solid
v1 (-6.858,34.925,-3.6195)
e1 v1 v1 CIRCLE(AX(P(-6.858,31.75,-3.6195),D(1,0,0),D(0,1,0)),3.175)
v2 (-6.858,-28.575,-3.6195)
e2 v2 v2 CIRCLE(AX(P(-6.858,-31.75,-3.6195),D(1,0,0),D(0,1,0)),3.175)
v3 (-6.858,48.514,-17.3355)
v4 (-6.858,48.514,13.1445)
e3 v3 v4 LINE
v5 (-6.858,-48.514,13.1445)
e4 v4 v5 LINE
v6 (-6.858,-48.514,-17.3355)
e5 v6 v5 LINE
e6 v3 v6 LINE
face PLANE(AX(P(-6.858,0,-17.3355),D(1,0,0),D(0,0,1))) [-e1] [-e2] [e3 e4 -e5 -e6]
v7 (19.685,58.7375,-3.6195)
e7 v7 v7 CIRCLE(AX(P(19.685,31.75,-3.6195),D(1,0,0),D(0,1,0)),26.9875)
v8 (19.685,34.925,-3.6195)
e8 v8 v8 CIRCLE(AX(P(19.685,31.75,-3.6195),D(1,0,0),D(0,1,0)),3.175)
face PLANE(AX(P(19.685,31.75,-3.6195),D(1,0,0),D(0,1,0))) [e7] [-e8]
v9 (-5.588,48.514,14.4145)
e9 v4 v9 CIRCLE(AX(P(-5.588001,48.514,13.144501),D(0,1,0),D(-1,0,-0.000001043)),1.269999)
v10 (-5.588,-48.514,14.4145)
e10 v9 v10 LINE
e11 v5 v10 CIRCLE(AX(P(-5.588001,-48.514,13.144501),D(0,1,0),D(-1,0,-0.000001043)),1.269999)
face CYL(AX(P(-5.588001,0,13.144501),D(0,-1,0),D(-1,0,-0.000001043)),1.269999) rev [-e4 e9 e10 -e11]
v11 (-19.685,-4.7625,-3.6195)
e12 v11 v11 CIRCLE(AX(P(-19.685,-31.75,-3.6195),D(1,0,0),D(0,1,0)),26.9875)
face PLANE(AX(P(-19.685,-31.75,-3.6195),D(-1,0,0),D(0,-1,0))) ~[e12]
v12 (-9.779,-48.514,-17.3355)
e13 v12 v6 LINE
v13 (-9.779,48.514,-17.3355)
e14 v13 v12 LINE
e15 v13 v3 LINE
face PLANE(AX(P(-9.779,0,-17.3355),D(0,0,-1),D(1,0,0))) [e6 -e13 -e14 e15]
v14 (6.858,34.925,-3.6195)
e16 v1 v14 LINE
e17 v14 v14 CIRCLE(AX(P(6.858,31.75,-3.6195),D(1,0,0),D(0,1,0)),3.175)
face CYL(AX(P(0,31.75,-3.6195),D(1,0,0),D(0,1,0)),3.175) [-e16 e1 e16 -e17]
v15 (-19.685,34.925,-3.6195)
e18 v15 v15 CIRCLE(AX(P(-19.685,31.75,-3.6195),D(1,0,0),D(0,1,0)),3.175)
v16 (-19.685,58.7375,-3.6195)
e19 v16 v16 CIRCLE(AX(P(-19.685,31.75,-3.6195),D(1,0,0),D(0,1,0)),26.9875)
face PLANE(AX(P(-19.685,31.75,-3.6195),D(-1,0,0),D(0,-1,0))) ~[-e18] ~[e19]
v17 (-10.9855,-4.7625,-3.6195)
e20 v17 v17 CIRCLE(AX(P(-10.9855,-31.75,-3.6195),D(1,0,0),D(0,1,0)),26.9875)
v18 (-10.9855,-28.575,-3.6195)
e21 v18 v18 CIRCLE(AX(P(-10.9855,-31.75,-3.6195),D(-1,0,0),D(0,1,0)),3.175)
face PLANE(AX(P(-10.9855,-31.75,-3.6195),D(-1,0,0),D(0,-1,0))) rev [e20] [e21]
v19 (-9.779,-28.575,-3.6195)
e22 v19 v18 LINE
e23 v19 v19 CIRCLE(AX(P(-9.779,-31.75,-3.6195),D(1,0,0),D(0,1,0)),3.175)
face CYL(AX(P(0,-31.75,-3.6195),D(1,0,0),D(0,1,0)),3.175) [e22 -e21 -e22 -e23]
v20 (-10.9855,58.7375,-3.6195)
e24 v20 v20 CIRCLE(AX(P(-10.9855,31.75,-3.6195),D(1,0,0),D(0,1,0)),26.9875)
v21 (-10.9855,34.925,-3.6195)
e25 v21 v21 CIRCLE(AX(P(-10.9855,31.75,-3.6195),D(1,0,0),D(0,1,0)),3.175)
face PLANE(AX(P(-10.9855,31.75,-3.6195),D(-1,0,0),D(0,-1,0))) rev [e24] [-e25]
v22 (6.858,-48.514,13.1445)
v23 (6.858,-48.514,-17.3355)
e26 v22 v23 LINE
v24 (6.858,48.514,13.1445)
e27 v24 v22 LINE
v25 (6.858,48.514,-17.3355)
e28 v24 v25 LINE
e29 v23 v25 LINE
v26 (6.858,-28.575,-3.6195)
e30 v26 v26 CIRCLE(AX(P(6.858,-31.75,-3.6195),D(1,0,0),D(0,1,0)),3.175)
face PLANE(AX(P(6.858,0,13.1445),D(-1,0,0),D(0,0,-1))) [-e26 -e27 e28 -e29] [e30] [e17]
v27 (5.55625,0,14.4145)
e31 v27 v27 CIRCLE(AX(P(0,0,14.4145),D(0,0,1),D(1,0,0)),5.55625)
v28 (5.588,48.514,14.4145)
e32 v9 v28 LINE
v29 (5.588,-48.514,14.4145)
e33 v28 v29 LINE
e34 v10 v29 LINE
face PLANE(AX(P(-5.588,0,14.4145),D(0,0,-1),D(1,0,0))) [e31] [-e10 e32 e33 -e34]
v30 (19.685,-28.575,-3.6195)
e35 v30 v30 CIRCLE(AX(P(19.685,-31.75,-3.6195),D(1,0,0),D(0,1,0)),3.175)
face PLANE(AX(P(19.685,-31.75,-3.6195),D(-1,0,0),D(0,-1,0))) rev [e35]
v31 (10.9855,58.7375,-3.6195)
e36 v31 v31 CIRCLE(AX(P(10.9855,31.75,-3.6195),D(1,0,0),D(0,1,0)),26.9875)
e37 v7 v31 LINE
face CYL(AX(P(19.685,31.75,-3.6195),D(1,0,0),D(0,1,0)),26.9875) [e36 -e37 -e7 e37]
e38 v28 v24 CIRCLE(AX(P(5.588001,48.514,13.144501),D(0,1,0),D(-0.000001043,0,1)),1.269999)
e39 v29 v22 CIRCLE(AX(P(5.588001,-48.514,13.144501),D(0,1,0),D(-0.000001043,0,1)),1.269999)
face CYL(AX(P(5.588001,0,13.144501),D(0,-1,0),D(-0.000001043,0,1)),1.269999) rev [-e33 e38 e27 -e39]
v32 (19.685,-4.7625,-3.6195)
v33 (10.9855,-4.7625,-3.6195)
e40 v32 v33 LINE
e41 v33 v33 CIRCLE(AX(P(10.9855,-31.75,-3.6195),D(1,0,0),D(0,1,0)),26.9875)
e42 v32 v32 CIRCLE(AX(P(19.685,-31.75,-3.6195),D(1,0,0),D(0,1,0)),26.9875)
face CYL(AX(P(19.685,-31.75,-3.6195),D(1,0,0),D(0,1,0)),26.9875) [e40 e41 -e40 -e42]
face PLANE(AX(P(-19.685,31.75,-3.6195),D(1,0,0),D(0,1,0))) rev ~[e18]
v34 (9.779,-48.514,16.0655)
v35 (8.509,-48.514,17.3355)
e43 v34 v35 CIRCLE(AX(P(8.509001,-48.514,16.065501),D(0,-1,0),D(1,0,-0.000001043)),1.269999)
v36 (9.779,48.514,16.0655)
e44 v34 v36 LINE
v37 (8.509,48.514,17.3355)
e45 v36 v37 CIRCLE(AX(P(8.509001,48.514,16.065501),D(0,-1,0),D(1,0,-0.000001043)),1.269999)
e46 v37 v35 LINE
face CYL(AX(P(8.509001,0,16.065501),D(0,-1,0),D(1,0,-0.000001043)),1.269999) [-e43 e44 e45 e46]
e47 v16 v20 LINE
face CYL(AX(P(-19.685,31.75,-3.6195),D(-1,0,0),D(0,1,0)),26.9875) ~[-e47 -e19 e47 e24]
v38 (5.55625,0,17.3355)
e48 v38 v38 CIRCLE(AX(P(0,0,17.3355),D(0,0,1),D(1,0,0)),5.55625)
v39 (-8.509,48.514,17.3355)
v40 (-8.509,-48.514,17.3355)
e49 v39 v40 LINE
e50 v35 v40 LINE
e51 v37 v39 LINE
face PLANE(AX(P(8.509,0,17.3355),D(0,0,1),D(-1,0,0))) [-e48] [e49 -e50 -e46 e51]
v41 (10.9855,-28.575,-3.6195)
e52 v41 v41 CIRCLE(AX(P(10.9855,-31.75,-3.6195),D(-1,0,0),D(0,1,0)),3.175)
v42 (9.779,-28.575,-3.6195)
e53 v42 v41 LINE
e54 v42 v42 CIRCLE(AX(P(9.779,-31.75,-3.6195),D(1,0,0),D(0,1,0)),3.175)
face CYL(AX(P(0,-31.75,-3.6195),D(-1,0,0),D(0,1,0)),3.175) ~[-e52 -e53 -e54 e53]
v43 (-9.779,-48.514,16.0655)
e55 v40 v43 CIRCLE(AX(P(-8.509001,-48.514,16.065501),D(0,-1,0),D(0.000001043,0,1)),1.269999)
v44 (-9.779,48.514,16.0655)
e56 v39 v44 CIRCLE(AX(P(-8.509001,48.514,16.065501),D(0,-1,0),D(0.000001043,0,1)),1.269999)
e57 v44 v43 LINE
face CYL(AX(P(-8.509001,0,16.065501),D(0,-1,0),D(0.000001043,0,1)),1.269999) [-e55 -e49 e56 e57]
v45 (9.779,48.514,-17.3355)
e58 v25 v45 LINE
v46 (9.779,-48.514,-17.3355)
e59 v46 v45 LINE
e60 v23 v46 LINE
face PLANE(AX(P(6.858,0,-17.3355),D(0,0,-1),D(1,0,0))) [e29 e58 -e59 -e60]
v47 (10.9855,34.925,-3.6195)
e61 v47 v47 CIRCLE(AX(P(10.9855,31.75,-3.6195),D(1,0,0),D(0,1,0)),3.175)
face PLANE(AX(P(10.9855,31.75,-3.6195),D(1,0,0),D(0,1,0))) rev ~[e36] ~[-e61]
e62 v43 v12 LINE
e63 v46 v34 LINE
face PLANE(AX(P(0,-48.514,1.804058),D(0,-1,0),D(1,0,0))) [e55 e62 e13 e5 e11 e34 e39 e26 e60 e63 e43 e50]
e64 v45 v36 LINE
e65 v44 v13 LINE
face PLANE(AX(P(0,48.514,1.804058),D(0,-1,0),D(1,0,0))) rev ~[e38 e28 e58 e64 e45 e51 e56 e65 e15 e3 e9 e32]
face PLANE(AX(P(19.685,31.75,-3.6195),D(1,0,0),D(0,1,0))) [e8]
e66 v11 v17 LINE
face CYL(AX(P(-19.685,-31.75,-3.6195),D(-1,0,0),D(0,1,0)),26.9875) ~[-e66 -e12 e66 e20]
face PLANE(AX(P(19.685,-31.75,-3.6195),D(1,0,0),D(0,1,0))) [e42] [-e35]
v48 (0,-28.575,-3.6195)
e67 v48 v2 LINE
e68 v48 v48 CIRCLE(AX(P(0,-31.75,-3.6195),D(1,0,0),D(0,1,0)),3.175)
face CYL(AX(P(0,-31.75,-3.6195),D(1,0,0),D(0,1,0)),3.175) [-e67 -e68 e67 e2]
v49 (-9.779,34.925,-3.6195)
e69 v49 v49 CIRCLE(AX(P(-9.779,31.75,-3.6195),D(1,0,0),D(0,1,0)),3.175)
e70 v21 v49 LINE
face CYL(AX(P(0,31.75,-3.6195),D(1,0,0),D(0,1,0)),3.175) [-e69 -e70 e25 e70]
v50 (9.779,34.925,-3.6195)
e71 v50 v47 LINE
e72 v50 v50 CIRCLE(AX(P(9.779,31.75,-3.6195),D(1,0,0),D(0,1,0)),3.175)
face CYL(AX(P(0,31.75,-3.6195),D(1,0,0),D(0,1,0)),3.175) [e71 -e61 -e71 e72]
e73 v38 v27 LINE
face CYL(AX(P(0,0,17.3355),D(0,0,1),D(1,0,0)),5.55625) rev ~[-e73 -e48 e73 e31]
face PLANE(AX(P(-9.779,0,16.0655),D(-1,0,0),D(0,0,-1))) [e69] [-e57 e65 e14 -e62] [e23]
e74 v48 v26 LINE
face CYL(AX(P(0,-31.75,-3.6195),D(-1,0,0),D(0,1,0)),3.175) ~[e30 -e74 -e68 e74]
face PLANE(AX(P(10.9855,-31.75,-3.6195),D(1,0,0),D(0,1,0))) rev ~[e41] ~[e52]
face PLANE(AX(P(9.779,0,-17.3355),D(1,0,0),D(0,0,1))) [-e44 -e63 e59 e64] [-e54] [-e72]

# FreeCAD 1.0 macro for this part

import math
import FreeCAD as App
import Part
import Sketcher

V = App.Vector
Q = App.Units.Quantity

doc = App.newDocument("Part")
body = doc.addObject("PartDesign::Body", "Body")

# Sketch on XZ plane
sketch1 = body.newObject("Sketcher::SketchObject", "Sketch")
sketch1.AttachmentSupport = (doc.getObject("XZ_Plane"), [""])
sketch1.MapMode = "FlatFace"
sketch1.addGeometry([
    Part.ArcOfCircle(Part.Circle(V(8.5, 16.1, 0), V(0, 0, 1), 1.3), math.radians(0), math.radians(90)),  # 0
    Part.LineSegment(V(8.5, 17.3, 0), V(-8.5, 17.3, 0)),  # 1
    Part.ArcOfCircle(Part.Circle(V(-8.5, 16.1, 0), V(0, 0, 1), 1.3), math.radians(90), math.radians(180)),  # 2
    Part.LineSegment(V(-9.8, 16.1, 0), V(-9.8, -17.3, 0)),  # 3
    Part.LineSegment(V(-9.8, -17.3, 0), V(-6.9, -17.3, 0)),  # 4
    Part.LineSegment(V(-6.9, -17.3, 0), V(-6.9, 13.1, 0)),  # 5
    Part.ArcOfCircle(Part.Circle(V(-5.6, 13.1, 0), V(0, 0, 1), 1.3), math.radians(90), math.radians(180)),  # 6
    Part.LineSegment(V(-5.6, 14.4, 0), V(5.6, 14.4, 0)),  # 7
    Part.ArcOfCircle(Part.Circle(V(5.6, 13.1, 0), V(0, 0, 1), 1.3), math.radians(0), math.radians(90)),  # 8
    Part.LineSegment(V(6.9, 13.1, 0), V(6.9, -17.3, 0)),  # 9
    Part.LineSegment(V(6.9, -17.3, 0), V(9.8, -17.3, 0)),  # 10
    Part.LineSegment(V(9.8, -17.3, 0), V(9.8, 16.1, 0)),  # 11
], False)
sketch1.addConstraint([
    Sketcher.Constraint("Tangent", 0, 2, 1, 1),
    Sketcher.Constraint("Tangent", 1, 2, 2, 1),
    Sketcher.Constraint("Tangent", 2, 2, 3, 1),
    Sketcher.Constraint("Coincident", 3, 2, 4, 1),
    Sketcher.Constraint("Coincident", 4, 2, 5, 1),
    Sketcher.Constraint("Tangent", 5, 2, 6, 2),
    Sketcher.Constraint("Tangent", 6, 1, 7, 1),
    Sketcher.Constraint("Tangent", 7, 2, 8, 2),
    Sketcher.Constraint("Tangent", 8, 1, 9, 1),
    Sketcher.Constraint("Coincident", 9, 2, 10, 1),
    Sketcher.Constraint("Coincident", 10, 2, 11, 1),
    Sketcher.Constraint("Tangent", 11, 2, 0, 1),
    Sketcher.Constraint("Horizontal", 1),
    Sketcher.Constraint("Vertical", 3),
    Sketcher.Constraint("Horizontal", 4),
    Sketcher.Constraint("Vertical", 5),
    Sketcher.Constraint("Horizontal", 7),
    Sketcher.Constraint("Vertical", 9),
    Sketcher.Constraint("Horizontal", 10),
    Sketcher.Constraint("Vertical", 11),
    Sketcher.Constraint("Equal", 0, 2),
    Sketcher.Constraint("Equal", 2, 6),
    Sketcher.Constraint("Equal", 6, 8),
    Sketcher.Constraint("Symmetric", 4, 2, 9, 2, -2),
    Sketcher.Constraint("Equal", 4, 10),
    Sketcher.Constraint("Radius", 0, Q("0.0499999 in")),
    Sketcher.Constraint("DistanceY", 5, 1, 5, 2, Q("1.2 in")),
    Sketcher.Constraint("DistanceX", 1, 2, 1, 1, Q("0.67 in")),
    Sketcher.Constraint("DistanceX", 7, 1, 7, 2, Q("0.44 in")),
    Sketcher.Constraint("DistanceY", 3, 2, 3, 1, Q("1.315 in")),
    Sketcher.Constraint("DistanceY", -1, 1, 0, 3, Q("0.6325001 in")),
])
pad1 = body.newObject("PartDesign::Pad", "Pad")
pad1.Profile = sketch1
pad1.Length = Q("3.82 in")
pad1.Midplane = True

# Sketch on YZ plane
sketch2 = body.newObject("Sketcher::SketchObject", "Sketch001")
sketch2.AttachmentSupport = (doc.getObject("YZ_Plane"), [""])
sketch2.MapMode = "FlatFace"
sketch2.AttachmentOffset = App.Placement(V(0, 0, 0.385 * 25.4), App.Rotation())
sketch2.addGeometry([
    Part.Circle(V(-31.8, -3.6, 0), V(0, 0, 1), 3.2),
    Part.Circle(V(31.8, -3.6, 0), V(0, 0, 1), 3.2),
], False)
sketch2.addConstraint([
    Sketcher.Constraint("Equal", 0, 1),
    Sketcher.Constraint("Symmetric", 0, 3, 1, 3, -2),
    Sketcher.Constraint("Diameter", 0, Q("0.25 in")),
    Sketcher.Constraint("DistanceX", 0, 3, 1, 3, Q("2.5 in")),
    Sketcher.Constraint("DistanceY", 0, 3, -1, 1, Q("0.1425 in")),
])
pocket1 = body.newObject("PartDesign::Pocket", "Pocket")
pocket1.Profile = sketch2
pocket1.Type = "ThroughAll"

# Sketch on YZ plane
sketch3 = body.newObject("Sketcher::SketchObject", "Sketch002")
sketch3.AttachmentSupport = (doc.getObject("YZ_Plane"), [""])
sketch3.MapMode = "FlatFace"
sketch3.addGeometry([
    Part.Circle(V(-31.8, -3.6, 0), V(0, 0, 1), 3.2),
    Part.Circle(V(31.8, -3.6, 0), V(0, 0, 1), 3.2),
], False)
sketch3.addConstraint([
    Sketcher.Constraint("Equal", 0, 1),
    Sketcher.Constraint("Symmetric", 0, 3, 1, 3, -2),
    Sketcher.Constraint("Diameter", 0, Q("0.25 in")),
    Sketcher.Constraint("DistanceX", 0, 3, 1, 3, Q("2.5 in")),
    Sketcher.Constraint("DistanceY", 0, 3, -1, 1, Q("0.1425 in")),
])
pad2 = body.newObject("PartDesign::Pad", "Pad001")
pad2.Profile = sketch3
pad2.Length = Q("1.55 in")
pad2.Midplane = True

# Sketch on YZ plane
sketch4 = body.newObject("Sketcher::SketchObject", "Sketch003")
sketch4.AttachmentSupport = (doc.getObject("YZ_Plane"), [""])
sketch4.MapMode = "FlatFace"
sketch4.AttachmentOffset = App.Placement(V(0, 0, 0.775 * 25.4), App.Rotation())
sketch4.addGeometry([
    Part.Circle(V(-32, -4, 0), V(0, 0, 1), 27),
    Part.Circle(V(32, -4, 0), V(0, 0, 1), 27),
], False)
sketch4.addConstraint([
    Sketcher.Constraint("Equal", 0, 1),
    Sketcher.Constraint("Symmetric", 0, 3, 1, 3, -2),
    Sketcher.Constraint("Diameter", 0, Q("2.125 in")),
    Sketcher.Constraint("DistanceX", 0, 3, 1, 3, Q("2.5 in")),
    Sketcher.Constraint("DistanceY", 0, 3, -1, 1, Q("0.1425 in")),
])
pad3 = body.newObject("PartDesign::Pad", "Pad002")
pad3.Profile = sketch4
pad3.Length = Q("0.3425 in")
pad3.Reversed = True
body2 = doc.addObject("PartDesign::Body", "Body001")
doc.recompute()

body2.BaseFeature = body
doc.recompute()

mirroring = doc.addObject("Part::Mirroring", "Mirroring")
mirroring.Source = body
mirroring.Base = V(0, 0, 0)
mirroring.Normal = V(1, 0, 0)
body3 = doc.addObject("PartDesign::Body", "Body002")
body3.BaseFeature = mirroring
boolean = body2.newObject("PartDesign::Boolean", "Boolean")
boolean.Type = "Fuse"
boolean.addObjects([body3])
doc.recompute()

# Sketch on XY plane
sketch5 = body2.newObject("Sketcher::SketchObject", "Sketch004")
sketch5.AttachmentSupport = (doc.getObject("XY_Plane001"), [""])
sketch5.MapMode = "FlatFace"
sketch5.AttachmentOffset = App.Placement(V(0, 0, 0.6825 * 25.4), App.Rotation())
sketch5.addGeometry(Part.Circle(V(0, 0, 0), V(0, 0, 1), 6), False)
sketch5.addConstraint([
    Sketcher.Constraint("Coincident", 0, 3, -1, 1),
    Sketcher.Constraint("Diameter", 0, Q("0.4375 in")),
])
pocket2 = body2.newObject("PartDesign::Pocket", "Pocket001")
pocket2.Profile = sketch5
pocket2.Type = "ThroughAll"
mirroring.Visibility = False

doc.recompute()
